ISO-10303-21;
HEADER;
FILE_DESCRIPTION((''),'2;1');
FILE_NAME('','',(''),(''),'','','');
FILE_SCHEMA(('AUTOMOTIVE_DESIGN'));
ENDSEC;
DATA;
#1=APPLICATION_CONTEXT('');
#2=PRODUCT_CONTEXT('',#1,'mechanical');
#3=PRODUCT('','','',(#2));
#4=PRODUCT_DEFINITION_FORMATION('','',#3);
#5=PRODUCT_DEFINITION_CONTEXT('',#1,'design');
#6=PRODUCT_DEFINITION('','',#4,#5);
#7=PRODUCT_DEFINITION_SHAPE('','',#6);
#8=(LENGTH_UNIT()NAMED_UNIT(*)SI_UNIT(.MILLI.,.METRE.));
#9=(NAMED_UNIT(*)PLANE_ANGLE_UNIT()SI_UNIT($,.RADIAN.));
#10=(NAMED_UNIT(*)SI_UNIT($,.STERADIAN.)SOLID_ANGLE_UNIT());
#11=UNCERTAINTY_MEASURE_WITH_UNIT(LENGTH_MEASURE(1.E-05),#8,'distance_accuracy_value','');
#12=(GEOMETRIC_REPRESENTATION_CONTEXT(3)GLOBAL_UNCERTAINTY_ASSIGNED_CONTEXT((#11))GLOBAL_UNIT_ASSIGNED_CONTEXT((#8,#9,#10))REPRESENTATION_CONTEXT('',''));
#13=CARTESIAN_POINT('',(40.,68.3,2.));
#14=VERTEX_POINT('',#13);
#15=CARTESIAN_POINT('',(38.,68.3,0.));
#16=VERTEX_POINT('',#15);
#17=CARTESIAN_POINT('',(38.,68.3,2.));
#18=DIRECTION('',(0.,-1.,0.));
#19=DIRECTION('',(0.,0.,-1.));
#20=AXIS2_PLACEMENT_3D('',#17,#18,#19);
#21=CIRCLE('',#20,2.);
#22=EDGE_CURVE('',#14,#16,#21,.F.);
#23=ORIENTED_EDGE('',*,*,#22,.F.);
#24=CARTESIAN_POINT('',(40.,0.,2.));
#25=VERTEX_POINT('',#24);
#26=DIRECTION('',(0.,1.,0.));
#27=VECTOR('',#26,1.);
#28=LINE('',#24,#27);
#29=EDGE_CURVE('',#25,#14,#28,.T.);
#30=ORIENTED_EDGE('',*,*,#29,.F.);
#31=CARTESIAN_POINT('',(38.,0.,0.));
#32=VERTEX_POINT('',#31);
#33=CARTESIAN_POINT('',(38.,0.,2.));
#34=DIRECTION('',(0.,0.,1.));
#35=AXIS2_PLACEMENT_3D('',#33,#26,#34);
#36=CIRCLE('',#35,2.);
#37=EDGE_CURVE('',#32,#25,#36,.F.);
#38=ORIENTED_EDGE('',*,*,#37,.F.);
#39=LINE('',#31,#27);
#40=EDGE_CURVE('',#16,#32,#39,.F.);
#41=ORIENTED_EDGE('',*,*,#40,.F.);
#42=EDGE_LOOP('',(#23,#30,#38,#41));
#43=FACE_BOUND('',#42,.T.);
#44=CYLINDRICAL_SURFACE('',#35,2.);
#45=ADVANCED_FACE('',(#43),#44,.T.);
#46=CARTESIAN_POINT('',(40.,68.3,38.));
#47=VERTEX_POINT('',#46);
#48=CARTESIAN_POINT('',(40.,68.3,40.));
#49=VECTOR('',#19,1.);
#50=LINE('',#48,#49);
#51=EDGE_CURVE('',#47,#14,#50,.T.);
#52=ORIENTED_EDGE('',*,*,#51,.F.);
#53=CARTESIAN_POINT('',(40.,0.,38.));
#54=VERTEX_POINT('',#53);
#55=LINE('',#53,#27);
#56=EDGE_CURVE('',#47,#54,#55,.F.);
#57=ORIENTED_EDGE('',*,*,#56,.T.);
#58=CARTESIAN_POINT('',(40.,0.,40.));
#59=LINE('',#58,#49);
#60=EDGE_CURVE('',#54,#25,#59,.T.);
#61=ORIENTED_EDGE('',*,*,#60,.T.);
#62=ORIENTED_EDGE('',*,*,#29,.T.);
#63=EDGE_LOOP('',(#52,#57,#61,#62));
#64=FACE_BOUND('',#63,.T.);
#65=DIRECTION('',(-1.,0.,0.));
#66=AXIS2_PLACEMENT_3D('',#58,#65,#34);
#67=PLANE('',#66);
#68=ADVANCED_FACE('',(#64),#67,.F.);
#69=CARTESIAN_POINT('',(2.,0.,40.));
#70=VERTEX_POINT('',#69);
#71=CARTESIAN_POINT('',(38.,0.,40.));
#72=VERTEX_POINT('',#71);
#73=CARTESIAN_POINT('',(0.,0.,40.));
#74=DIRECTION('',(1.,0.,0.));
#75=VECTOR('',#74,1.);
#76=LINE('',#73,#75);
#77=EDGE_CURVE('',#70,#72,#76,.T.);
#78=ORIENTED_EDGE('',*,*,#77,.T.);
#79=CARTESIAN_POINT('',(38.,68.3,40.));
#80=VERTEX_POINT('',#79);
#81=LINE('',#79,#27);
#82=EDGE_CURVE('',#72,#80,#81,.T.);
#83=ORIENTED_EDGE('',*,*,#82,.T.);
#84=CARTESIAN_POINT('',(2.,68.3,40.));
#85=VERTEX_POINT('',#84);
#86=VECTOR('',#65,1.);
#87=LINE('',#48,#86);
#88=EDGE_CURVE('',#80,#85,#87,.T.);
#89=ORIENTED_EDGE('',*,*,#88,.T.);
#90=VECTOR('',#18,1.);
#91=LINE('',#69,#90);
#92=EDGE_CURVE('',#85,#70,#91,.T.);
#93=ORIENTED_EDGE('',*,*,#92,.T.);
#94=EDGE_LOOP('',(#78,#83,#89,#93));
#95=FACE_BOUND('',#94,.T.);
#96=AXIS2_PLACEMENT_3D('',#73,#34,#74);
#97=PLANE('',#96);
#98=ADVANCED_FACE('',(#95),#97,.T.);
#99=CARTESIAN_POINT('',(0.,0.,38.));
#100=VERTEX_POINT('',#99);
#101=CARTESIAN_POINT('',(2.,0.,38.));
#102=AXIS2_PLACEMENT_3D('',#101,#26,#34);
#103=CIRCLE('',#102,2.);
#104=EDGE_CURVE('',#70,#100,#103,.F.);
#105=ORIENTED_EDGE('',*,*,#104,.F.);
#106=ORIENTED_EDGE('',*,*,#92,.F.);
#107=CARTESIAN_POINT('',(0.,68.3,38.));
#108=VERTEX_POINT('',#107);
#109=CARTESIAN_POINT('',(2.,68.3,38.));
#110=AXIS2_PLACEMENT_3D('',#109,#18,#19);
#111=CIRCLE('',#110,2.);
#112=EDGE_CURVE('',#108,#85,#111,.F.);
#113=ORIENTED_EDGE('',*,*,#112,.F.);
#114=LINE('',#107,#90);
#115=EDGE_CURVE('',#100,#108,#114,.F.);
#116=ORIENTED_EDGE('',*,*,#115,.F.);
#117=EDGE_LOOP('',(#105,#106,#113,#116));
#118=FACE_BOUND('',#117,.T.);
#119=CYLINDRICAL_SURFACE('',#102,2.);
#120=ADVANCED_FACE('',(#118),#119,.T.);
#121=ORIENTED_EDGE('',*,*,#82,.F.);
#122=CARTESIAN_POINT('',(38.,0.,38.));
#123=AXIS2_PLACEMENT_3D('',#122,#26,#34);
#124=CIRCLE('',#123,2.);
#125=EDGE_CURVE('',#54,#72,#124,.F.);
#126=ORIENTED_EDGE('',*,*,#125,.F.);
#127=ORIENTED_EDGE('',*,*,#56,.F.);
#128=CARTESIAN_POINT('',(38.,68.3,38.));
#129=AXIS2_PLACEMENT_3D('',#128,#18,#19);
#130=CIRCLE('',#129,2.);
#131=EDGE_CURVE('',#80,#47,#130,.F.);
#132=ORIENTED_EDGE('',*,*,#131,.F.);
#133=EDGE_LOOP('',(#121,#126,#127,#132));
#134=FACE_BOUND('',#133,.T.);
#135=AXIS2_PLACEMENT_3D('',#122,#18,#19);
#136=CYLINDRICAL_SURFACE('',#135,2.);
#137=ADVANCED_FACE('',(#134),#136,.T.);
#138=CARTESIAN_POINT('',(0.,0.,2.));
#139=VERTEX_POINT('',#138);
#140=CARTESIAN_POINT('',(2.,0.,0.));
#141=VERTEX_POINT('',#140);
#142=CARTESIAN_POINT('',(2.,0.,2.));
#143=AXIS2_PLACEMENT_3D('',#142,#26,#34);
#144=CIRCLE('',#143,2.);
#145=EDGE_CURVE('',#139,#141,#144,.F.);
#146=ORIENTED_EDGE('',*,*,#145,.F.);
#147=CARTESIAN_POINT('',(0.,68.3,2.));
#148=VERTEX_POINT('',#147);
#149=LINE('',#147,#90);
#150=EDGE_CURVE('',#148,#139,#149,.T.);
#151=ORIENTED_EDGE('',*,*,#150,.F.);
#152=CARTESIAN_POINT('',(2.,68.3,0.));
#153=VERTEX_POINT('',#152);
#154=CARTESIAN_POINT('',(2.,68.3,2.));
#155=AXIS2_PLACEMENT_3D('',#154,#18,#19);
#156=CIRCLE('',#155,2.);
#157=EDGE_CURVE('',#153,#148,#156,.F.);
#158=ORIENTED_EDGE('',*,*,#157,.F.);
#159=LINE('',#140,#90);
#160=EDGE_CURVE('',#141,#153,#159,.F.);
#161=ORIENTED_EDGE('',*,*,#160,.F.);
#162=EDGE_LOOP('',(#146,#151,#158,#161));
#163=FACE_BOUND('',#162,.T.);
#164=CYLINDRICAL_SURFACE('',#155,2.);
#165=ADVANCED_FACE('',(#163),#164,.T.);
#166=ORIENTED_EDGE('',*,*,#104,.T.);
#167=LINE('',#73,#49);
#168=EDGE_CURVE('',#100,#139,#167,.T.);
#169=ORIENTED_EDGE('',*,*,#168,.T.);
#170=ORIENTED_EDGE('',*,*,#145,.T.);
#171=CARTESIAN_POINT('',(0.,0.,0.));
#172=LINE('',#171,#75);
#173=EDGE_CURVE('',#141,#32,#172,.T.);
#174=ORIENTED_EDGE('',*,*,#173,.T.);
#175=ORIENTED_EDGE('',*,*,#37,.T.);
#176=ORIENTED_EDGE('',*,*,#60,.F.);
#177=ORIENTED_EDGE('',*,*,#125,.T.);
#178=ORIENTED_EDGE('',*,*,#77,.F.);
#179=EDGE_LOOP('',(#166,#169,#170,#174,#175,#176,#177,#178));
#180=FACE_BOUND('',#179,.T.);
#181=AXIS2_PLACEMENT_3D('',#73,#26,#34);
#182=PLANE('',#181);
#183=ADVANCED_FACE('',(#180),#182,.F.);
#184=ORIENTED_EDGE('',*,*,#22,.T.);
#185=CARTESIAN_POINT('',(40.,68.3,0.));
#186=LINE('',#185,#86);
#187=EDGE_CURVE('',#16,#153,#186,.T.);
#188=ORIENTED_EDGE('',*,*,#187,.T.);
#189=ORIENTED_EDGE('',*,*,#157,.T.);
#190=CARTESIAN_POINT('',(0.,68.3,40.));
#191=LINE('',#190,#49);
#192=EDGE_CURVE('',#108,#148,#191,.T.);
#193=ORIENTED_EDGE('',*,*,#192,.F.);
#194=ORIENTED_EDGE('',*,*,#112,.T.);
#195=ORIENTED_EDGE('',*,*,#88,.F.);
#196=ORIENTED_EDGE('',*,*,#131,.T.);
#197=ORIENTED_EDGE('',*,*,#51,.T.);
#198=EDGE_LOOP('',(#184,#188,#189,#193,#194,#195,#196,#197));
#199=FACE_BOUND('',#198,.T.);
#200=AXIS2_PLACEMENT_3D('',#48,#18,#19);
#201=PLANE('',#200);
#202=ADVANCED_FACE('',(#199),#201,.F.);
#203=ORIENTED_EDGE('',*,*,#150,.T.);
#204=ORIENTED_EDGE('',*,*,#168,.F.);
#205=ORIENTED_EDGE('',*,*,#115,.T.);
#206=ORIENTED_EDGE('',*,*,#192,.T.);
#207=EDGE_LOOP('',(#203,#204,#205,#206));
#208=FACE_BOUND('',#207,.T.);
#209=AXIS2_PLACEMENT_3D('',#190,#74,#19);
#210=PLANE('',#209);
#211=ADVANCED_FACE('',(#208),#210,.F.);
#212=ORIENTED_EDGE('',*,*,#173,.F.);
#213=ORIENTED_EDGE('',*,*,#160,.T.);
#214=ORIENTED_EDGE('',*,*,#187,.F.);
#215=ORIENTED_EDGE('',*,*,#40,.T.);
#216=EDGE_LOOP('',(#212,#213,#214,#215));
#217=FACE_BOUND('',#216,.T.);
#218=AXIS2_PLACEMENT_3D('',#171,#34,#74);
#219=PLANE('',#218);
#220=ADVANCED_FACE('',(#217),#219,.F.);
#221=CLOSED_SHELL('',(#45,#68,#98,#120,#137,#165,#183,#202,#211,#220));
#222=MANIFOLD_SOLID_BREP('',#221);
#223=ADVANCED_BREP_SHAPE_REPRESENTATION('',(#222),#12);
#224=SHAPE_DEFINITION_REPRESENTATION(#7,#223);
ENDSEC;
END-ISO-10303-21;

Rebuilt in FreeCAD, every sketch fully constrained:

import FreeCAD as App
import Part
import Sketcher
from FreeCAD import Vector
Q = App.Units.Quantity


def edges_at(feature, points):
    """Names of the edges that pass closest to the given points."""
    edges = feature.Shape.Edges
    near = lambda p: min(range(len(edges)), key=lambda i: edges[i].distToShape(Part.Vertex(*p))[0])
    return sorted({f"Edge{near(p) + 1}" for p in points})

doc = App.newDocument("Part")
body = doc.addObject("PartDesign::Body", "Body")

sketch1 = doc.addObject("Sketcher::SketchObject", "Sketch")
body.addObject(sketch1)
sketch1.AttachmentSupport = (doc.XY_Plane, [""])
sketch1.MapMode = "FlatFace"
sketch1.addGeometry([
    Part.LineSegment(Vector(0, 68, 0), Vector(0, 0, 0)),
    Part.LineSegment(Vector(0, 0, 0), Vector(40, 0, 0)),
    Part.LineSegment(Vector(40, 0, 0), Vector(40, 68, 0)),
    Part.LineSegment(Vector(40, 68, 0), Vector(0, 68, 0)),
], False)
sketch1.addConstraint([
    Sketcher.Constraint("Coincident", 0, 2, 1, 1),
    Sketcher.Constraint("Coincident", 1, 2, 2, 1),
    Sketcher.Constraint("Coincident", 2, 2, 3, 1),
    Sketcher.Constraint("Coincident", 3, 2, 0, 1),
    Sketcher.Constraint("Vertical", 0),
    Sketcher.Constraint("Horizontal", 1),
    Sketcher.Constraint("Vertical", 2),
    Sketcher.Constraint("Horizontal", 3),
    Sketcher.Constraint("Coincident", 0, 2, -1, 1),
    Sketcher.Constraint("DistanceX", 1, 1, 1, 2, Q("40 mm")),
    Sketcher.Constraint("DistanceY", 0, 2, 0, 1, Q("68.3 mm")),
])
pad1 = doc.addObject("PartDesign::Pad", "Pad")
body.addObject(pad1)
pad1.Profile = sketch1
pad1.Length = 40
doc.recompute()

fillet = doc.addObject("PartDesign::Fillet", "Fillet")
body.addObject(fillet)
fillet.Base = (pad1, edges_at(pad1, [
    (40, 34.15, 40),
    (0, 34.15, 40),
    (40, 34.15, 0),
    (0, 34.15, 0),
]))
fillet.Radius = 2

doc.recompute()
